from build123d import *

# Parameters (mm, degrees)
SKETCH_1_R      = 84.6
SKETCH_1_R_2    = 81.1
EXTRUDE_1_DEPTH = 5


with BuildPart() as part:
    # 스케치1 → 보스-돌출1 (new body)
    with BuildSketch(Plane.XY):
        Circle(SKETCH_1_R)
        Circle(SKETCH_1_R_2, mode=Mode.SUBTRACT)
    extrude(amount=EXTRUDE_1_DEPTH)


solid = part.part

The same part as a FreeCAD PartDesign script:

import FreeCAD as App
import Part
import Sketcher
Q = App.Units.Quantity

doc = App.newDocument("Part")
body = doc.addObject("PartDesign::Body", "Body")

sketch1 = doc.addObject("Sketcher::SketchObject", "Sketch")
body.addObject(sketch1)
sketch1.AttachmentSupport = (doc.XY_Plane, [""])
sketch1.MapMode = "FlatFace"
sketch1.addGeometry([
    Part.Circle(App.Vector(0, 0, 0), App.Vector(0, 0, 1), 85),
    Part.Circle(App.Vector(0, 0, 0), App.Vector(0, 0, 1), 81),
], False)
sketch1.addConstraint([
    Sketcher.Constraint("Coincident", 0, 3, -1, 1),
    Sketcher.Constraint("Coincident", 1, 3, -1, 1),
    Sketcher.Constraint("Diameter", 0, Q("169.2 mm")),
    Sketcher.Constraint("Diameter", 1, Q("162.2 mm")),
])
pad1 = doc.addObject("PartDesign::Pad", "Pad")
body.addObject(pad1)
pad1.Profile = sketch1
pad1.Length = 5

doc.recompute()
